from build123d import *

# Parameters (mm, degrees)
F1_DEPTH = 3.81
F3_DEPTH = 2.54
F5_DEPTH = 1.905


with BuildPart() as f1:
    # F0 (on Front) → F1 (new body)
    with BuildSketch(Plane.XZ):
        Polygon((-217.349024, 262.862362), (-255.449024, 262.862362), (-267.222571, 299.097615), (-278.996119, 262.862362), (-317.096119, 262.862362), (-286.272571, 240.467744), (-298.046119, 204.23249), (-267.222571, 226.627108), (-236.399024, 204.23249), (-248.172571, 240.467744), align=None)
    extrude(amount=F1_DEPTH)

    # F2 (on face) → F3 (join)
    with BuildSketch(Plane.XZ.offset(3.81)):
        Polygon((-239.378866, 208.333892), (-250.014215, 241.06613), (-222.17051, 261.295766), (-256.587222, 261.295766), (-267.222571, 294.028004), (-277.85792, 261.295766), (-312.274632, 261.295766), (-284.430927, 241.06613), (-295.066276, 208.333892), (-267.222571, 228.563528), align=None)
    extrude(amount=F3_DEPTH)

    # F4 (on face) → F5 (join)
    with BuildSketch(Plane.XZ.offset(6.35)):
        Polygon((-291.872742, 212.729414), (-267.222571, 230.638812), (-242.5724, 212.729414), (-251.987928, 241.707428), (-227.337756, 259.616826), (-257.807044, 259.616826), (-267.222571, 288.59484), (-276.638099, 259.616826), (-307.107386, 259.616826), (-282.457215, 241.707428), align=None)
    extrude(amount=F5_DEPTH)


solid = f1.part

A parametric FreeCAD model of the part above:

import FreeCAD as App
import Part
import Sketcher

V = App.Vector
Q = App.Units.Quantity


def add_polygon(sketch, points):
    """Adds a closed chain of lines whose ends are joined by coincident constraints."""
    first, n = sketch.GeometryCount, len(points)
    for a, b in zip(points, points[1:] + points[:1]):
        sketch.addGeometry(Part.LineSegment(App.Vector(*a, 0), App.Vector(*b, 0)), False)
    for i in range(n):
        sketch.addConstraint(Sketcher.Constraint("Coincident", first + i, 2, first + (i + 1) % n, 1))

doc = App.newDocument("Part")
body = doc.addObject("PartDesign::Body", "Body")

# Sketch on XZ plane
sketch1 = doc.addObject("Sketcher::SketchObject", "Sketch")
body.addObject(sketch1)
sketch1.AttachmentSupport = (doc.XZ_Plane, [""])
sketch1.MapMode = "FlatFace"
add_polygon(sketch1, [(-217, 263), (-255, 263), (-267, 299), (-279, 263), (-317, 263), (-286, 240), (-298, 204), (-267, 227), (-236, 204), (-248, 240)])  # lines 0-9
sketch1.addConstraint(Sketcher.Constraint("Horizontal", 0))
sketch1.addConstraint(Sketcher.Constraint("Horizontal", 3))
sketch1.addConstraint(Sketcher.Constraint("Parallel", 2, 5))
sketch1.addConstraint(Sketcher.Constraint("Parallel", 4, 7))
sketch1.addConstraint(Sketcher.Constraint("Parallel", 1, 8))
sketch1.addConstraint(Sketcher.Constraint("Parallel", 6, 9))
sketch1.addConstraint(Sketcher.Constraint("Horizontal", 0, 2, 2, 2))
sketch1.addConstraint(Sketcher.Constraint("Horizontal", 5, 2, 7, 2))
sketch1.addConstraint(Sketcher.Constraint("Horizontal", 4, 2, 8, 2))
sketch1.addConstraint(Sketcher.Constraint("Vertical", 1, 2, 6, 2))
sketch1.addConstraint(Sketcher.Constraint("Equal", 0, 3))
sketch1.addConstraint(Sketcher.Constraint("Equal", 2, 4))
sketch1.addConstraint(Sketcher.Constraint("Equal", 4, 5))
sketch1.addConstraint(Sketcher.Constraint("Equal", 5, 6))
sketch1.addConstraint(Sketcher.Constraint("Equal", 6, 7))
sketch1.addConstraint(Sketcher.Constraint("DistanceX", 0, 2, 0, 1, Q("1.5 in")))
sketch1.addConstraint(Sketcher.Constraint("Angle", 1, Q("107.999999 deg")))
sketch1.addConstraint(Sketcher.Constraint("Angle", 4, Q("-35.999999 deg")))
sketch1.addConstraint(Sketcher.Constraint("DistanceY", -1, 1, 0, 2, Q("262.862362 mm")))
sketch1.addConstraint(Sketcher.Constraint("DistanceX", 1, 2, -1, 1, Q("267.222571 mm")))
pad1 = doc.addObject("PartDesign::Pad", "Pad")
body.addObject(pad1)
pad1.Profile = sketch1
pad1.Length = Q("0.15 in")

# Sketch on XZ plane
sketch2 = doc.addObject("Sketcher::SketchObject", "Sketch001")
body.addObject(sketch2)
sketch2.AttachmentSupport = (doc.XZ_Plane, [""])
sketch2.MapMode = "FlatFace"
sketch2.AttachmentOffset = App.Placement(V(0, 0, 0.15 * 25.4), App.Rotation())
add_polygon(sketch2, [(-239, 208), (-250, 241), (-222, 261), (-257, 261), (-267, 294), (-278, 261), (-312, 261), (-284, 241), (-295, 208), (-267, 229)])  # lines 0-9
sketch2.addConstraint(Sketcher.Constraint("Horizontal", 2))
sketch2.addConstraint(Sketcher.Constraint("Horizontal", 5))
sketch2.addConstraint(Sketcher.Constraint("Parallel", 0, 3))
sketch2.addConstraint(Sketcher.Constraint("Parallel", 4, 7))
sketch2.addConstraint(Sketcher.Constraint("Parallel", 1, 8))
sketch2.addConstraint(Sketcher.Constraint("Parallel", 6, 9))
sketch2.addConstraint(Sketcher.Constraint("Horizontal", 2, 2, 4, 2))
sketch2.addConstraint(Sketcher.Constraint("Horizontal", 0, 2, 6, 2))
sketch2.addConstraint(Sketcher.Constraint("Horizontal", 7, 2, 9, 2))
sketch2.addConstraint(Sketcher.Constraint("Vertical", 3, 2, 8, 2))
sketch2.addConstraint(Sketcher.Constraint("Equal", 2, 5))
sketch2.addConstraint(Sketcher.Constraint("Equal", 0, 1))
sketch2.addConstraint(Sketcher.Constraint("Equal", 1, 3))
sketch2.addConstraint(Sketcher.Constraint("Equal", 4, 6))
sketch2.addConstraint(Sketcher.Constraint("Equal", 7, 8))
sketch2.addConstraint(Sketcher.Constraint("Angle", 0, Q("108 deg")))
sketch2.addConstraint(Sketcher.Constraint("Angle", 1, Q("36 deg")))
sketch2.addConstraint(Sketcher.Constraint("DistanceX", 2, 2, 2, 1, Q("34.416712 mm")))
sketch2.addConstraint(Sketcher.Constraint("DistanceY", -1, 1, 0, 2, Q("241.06613 mm")))
sketch2.addConstraint(Sketcher.Constraint("DistanceX", 1, 2, -1, 1, Q("222.17051 mm")))
pad2 = doc.addObject("PartDesign::Pad", "Pad001")
body.addObject(pad2)
pad2.Profile = sketch2
pad2.Length = Q("0.1 in")

# Sketch on XZ plane
sketch3 = doc.addObject("Sketcher::SketchObject", "Sketch002")
body.addObject(sketch3)
sketch3.AttachmentSupport = (doc.XZ_Plane, [""])
sketch3.MapMode = "FlatFace"
sketch3.AttachmentOffset = App.Placement(V(0, 0, 0.25 * 25.4), App.Rotation())
add_polygon(sketch3, [(-292, 213), (-267, 231), (-243, 213), (-252, 242), (-227, 260), (-258, 260), (-267, 289), (-277, 260), (-307, 260), (-282, 242)])  # lines 0-9
sketch3.addConstraint(Sketcher.Constraint("Horizontal", 4))
sketch3.addConstraint(Sketcher.Constraint("Horizontal", 7))
sketch3.addConstraint(Sketcher.Constraint("Parallel", 0, 3))
sketch3.addConstraint(Sketcher.Constraint("Parallel", 2, 5))
sketch3.addConstraint(Sketcher.Constraint("Parallel", 1, 8))
sketch3.addConstraint(Sketcher.Constraint("Parallel", 6, 9))
sketch3.addConstraint(Sketcher.Constraint("Horizontal", 4, 2, 6, 2))
sketch3.addConstraint(Sketcher.Constraint("Horizontal", 2, 2, 8, 2))
sketch3.addConstraint(Sketcher.Constraint("Horizontal", 1, 2, 9, 2))
sketch3.addConstraint(Sketcher.Constraint("Vertical", 0, 2, 5, 2))
sketch3.addConstraint(Sketcher.Constraint("Equal", 4, 7))
sketch3.addConstraint(Sketcher.Constraint("Equal", 0, 1))
sketch3.addConstraint(Sketcher.Constraint("Equal", 1, 2))
sketch3.addConstraint(Sketcher.Constraint("Equal", 2, 3))
sketch3.addConstraint(Sketcher.Constraint("Equal", 3, 5))
sketch3.addConstraint(Sketcher.Constraint("Angle", 0, Q("36.000001 deg")))
sketch3.addConstraint(Sketcher.Constraint("Angle", 2, Q("108.000001 deg")))
sketch3.addConstraint(Sketcher.Constraint("DistanceX", 4, 2, 4, 1, Q("30.469288 mm")))
sketch3.addConstraint(Sketcher.Constraint("DistanceX", 1, 2, -1, 1, Q("242.5724 mm")))
sketch3.addConstraint(Sketcher.Constraint("DistanceY", -1, 1, 0, 2, Q("230.638812 mm")))
pad3 = doc.addObject("PartDesign::Pad", "Pad002")
body.addObject(pad3)
pad3.Profile = sketch3
pad3.Length = Q("0.075 in")

doc.recompute()
